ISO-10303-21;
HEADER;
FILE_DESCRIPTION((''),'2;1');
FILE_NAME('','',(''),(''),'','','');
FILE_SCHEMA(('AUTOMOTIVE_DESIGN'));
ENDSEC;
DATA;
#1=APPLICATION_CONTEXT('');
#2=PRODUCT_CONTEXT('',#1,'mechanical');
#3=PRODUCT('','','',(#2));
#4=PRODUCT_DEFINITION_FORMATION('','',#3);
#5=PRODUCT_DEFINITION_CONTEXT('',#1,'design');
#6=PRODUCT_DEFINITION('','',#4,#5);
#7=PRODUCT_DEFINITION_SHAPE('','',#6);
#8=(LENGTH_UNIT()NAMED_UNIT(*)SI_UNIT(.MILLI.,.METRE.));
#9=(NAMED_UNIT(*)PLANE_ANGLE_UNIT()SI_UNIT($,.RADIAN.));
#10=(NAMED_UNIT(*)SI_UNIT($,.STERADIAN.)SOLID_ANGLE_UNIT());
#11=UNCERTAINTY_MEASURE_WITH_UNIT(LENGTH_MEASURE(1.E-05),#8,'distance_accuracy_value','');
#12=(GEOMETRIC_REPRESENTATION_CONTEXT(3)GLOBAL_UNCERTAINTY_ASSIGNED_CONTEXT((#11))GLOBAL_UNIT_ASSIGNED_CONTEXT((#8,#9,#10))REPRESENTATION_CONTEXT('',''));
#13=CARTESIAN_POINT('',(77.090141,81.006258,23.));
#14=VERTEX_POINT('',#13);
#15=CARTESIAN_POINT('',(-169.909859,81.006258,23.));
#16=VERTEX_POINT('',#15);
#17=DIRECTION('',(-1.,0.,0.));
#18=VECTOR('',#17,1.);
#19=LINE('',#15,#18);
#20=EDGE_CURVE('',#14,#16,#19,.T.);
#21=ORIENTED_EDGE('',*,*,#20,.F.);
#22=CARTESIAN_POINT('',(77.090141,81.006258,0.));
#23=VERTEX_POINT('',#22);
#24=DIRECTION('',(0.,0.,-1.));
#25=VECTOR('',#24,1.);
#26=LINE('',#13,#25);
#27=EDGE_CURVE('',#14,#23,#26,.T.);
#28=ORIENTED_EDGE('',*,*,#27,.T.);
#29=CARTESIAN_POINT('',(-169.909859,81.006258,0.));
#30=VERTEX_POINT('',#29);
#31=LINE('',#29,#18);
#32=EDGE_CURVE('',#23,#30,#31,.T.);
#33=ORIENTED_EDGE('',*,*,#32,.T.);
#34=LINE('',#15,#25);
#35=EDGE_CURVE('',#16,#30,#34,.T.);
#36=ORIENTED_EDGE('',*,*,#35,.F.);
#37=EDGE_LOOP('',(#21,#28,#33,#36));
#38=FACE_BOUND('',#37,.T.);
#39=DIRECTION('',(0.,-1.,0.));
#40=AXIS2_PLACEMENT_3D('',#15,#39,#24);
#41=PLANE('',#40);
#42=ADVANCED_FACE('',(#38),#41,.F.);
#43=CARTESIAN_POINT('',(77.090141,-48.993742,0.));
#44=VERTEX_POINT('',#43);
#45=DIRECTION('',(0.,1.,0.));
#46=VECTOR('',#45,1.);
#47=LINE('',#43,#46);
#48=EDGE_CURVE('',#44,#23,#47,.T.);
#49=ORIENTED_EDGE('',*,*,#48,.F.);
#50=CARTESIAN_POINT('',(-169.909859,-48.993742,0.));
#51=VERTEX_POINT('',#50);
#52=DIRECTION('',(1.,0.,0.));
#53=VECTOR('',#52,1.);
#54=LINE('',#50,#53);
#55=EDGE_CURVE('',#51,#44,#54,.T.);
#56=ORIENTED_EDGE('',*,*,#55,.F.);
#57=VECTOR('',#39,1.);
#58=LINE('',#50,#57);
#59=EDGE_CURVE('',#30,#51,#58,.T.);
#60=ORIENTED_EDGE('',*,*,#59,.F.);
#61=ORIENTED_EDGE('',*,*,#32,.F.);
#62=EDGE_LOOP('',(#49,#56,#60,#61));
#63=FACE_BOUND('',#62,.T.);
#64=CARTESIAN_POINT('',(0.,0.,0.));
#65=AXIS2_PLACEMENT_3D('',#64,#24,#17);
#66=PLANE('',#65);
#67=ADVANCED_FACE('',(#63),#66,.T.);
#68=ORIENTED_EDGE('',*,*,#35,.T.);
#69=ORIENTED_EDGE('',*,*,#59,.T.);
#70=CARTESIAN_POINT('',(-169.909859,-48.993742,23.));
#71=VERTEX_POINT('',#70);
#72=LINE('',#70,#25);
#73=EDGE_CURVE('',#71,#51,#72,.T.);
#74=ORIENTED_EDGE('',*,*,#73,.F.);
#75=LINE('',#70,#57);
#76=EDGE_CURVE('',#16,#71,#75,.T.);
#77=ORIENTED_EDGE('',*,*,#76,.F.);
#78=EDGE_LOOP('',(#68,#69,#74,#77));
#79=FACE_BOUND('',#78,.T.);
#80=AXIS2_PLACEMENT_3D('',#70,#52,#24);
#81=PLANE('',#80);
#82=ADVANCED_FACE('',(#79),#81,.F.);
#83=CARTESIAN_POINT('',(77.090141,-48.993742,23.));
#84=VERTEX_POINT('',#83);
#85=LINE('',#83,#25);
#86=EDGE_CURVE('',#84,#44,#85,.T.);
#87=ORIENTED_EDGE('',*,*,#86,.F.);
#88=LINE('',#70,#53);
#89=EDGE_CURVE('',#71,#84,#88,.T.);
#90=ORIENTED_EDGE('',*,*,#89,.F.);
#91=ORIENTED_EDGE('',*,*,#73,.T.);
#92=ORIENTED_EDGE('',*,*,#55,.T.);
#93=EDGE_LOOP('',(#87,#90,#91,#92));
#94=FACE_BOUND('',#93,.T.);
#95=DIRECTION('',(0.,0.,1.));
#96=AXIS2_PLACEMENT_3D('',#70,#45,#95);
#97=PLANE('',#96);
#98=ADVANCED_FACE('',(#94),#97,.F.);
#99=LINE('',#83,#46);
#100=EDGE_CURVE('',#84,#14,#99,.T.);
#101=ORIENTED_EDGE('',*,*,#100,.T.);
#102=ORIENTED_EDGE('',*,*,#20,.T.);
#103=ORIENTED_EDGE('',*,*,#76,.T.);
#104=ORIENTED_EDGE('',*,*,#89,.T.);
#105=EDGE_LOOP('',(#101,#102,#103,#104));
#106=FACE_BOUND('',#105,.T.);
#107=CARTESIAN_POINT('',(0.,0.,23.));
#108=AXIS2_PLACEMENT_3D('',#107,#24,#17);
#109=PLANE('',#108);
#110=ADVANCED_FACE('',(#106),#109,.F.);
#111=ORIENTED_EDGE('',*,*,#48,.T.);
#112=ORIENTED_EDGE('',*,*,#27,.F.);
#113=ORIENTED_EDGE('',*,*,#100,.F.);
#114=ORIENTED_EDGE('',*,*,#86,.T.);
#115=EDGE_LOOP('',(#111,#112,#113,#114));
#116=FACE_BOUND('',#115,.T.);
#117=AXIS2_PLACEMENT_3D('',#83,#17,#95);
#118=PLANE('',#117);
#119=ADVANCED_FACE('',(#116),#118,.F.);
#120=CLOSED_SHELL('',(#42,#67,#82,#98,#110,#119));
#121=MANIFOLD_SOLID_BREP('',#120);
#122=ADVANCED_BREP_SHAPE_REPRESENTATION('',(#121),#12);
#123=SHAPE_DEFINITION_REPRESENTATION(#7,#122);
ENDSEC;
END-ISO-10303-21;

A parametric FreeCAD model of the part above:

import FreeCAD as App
import Part
import Sketcher

V = App.Vector

doc = App.newDocument("Part")
body = doc.addObject("PartDesign::Body", "Body")

# Sketch on XY plane
sketch1 = body.newObject("Sketcher::SketchObject", "Sketch")
sketch1.AttachmentSupport = (doc.getObject("XY_Plane"), [""])
sketch1.MapMode = "FlatFace"
sketch1.addGeometry(Part.LineSegment(V(-169.909859, 81.006258, 0), V(-169.909859, -48.993742, 0)), False)
sketch1.addGeometry(Part.LineSegment(V(-169.909859, -48.993742, 0), V(77.090141, -48.993742, 0)), False)
sketch1.addGeometry(Part.LineSegment(V(77.090141, -48.993742, 0), V(77.090141, 81.006258, 0)), False)
sketch1.addGeometry(Part.LineSegment(V(77.090141, 81.006258, 0), V(-169.909859, 81.006258, 0)), False)
sketch1.addConstraint(Sketcher.Constraint("Coincident", 0, 2, 1, 1))
sketch1.addConstraint(Sketcher.Constraint("Coincident", 1, 2, 2, 1))
sketch1.addConstraint(Sketcher.Constraint("Coincident", 2, 2, 3, 1))
sketch1.addConstraint(Sketcher.Constraint("Coincident", 3, 2, 0, 1))
sketch1.addConstraint(Sketcher.Constraint("Vertical", 0))
sketch1.addConstraint(Sketcher.Constraint("Horizontal", 1))
sketch1.addConstraint(Sketcher.Constraint("Vertical", 2))
sketch1.addConstraint(Sketcher.Constraint("Horizontal", 3))
sketch1.addConstraint(Sketcher.Constraint("DistanceX", 1, 1, 1, 2, 247.0))
sketch1.addConstraint(Sketcher.Constraint("DistanceY", 0, 2, 0, 1, 130.0))
sketch1.addConstraint(Sketcher.Constraint("DistanceX", 0, 2, -1, 1, 169.909859))
sketch1.addConstraint(Sketcher.Constraint("DistanceY", 0, 2, -1, 1, 48.993742))
pad1 = body.newObject("PartDesign::Pad", "Pad")
pad1.Profile = sketch1
pad1.Length = 23

doc.recompute()
